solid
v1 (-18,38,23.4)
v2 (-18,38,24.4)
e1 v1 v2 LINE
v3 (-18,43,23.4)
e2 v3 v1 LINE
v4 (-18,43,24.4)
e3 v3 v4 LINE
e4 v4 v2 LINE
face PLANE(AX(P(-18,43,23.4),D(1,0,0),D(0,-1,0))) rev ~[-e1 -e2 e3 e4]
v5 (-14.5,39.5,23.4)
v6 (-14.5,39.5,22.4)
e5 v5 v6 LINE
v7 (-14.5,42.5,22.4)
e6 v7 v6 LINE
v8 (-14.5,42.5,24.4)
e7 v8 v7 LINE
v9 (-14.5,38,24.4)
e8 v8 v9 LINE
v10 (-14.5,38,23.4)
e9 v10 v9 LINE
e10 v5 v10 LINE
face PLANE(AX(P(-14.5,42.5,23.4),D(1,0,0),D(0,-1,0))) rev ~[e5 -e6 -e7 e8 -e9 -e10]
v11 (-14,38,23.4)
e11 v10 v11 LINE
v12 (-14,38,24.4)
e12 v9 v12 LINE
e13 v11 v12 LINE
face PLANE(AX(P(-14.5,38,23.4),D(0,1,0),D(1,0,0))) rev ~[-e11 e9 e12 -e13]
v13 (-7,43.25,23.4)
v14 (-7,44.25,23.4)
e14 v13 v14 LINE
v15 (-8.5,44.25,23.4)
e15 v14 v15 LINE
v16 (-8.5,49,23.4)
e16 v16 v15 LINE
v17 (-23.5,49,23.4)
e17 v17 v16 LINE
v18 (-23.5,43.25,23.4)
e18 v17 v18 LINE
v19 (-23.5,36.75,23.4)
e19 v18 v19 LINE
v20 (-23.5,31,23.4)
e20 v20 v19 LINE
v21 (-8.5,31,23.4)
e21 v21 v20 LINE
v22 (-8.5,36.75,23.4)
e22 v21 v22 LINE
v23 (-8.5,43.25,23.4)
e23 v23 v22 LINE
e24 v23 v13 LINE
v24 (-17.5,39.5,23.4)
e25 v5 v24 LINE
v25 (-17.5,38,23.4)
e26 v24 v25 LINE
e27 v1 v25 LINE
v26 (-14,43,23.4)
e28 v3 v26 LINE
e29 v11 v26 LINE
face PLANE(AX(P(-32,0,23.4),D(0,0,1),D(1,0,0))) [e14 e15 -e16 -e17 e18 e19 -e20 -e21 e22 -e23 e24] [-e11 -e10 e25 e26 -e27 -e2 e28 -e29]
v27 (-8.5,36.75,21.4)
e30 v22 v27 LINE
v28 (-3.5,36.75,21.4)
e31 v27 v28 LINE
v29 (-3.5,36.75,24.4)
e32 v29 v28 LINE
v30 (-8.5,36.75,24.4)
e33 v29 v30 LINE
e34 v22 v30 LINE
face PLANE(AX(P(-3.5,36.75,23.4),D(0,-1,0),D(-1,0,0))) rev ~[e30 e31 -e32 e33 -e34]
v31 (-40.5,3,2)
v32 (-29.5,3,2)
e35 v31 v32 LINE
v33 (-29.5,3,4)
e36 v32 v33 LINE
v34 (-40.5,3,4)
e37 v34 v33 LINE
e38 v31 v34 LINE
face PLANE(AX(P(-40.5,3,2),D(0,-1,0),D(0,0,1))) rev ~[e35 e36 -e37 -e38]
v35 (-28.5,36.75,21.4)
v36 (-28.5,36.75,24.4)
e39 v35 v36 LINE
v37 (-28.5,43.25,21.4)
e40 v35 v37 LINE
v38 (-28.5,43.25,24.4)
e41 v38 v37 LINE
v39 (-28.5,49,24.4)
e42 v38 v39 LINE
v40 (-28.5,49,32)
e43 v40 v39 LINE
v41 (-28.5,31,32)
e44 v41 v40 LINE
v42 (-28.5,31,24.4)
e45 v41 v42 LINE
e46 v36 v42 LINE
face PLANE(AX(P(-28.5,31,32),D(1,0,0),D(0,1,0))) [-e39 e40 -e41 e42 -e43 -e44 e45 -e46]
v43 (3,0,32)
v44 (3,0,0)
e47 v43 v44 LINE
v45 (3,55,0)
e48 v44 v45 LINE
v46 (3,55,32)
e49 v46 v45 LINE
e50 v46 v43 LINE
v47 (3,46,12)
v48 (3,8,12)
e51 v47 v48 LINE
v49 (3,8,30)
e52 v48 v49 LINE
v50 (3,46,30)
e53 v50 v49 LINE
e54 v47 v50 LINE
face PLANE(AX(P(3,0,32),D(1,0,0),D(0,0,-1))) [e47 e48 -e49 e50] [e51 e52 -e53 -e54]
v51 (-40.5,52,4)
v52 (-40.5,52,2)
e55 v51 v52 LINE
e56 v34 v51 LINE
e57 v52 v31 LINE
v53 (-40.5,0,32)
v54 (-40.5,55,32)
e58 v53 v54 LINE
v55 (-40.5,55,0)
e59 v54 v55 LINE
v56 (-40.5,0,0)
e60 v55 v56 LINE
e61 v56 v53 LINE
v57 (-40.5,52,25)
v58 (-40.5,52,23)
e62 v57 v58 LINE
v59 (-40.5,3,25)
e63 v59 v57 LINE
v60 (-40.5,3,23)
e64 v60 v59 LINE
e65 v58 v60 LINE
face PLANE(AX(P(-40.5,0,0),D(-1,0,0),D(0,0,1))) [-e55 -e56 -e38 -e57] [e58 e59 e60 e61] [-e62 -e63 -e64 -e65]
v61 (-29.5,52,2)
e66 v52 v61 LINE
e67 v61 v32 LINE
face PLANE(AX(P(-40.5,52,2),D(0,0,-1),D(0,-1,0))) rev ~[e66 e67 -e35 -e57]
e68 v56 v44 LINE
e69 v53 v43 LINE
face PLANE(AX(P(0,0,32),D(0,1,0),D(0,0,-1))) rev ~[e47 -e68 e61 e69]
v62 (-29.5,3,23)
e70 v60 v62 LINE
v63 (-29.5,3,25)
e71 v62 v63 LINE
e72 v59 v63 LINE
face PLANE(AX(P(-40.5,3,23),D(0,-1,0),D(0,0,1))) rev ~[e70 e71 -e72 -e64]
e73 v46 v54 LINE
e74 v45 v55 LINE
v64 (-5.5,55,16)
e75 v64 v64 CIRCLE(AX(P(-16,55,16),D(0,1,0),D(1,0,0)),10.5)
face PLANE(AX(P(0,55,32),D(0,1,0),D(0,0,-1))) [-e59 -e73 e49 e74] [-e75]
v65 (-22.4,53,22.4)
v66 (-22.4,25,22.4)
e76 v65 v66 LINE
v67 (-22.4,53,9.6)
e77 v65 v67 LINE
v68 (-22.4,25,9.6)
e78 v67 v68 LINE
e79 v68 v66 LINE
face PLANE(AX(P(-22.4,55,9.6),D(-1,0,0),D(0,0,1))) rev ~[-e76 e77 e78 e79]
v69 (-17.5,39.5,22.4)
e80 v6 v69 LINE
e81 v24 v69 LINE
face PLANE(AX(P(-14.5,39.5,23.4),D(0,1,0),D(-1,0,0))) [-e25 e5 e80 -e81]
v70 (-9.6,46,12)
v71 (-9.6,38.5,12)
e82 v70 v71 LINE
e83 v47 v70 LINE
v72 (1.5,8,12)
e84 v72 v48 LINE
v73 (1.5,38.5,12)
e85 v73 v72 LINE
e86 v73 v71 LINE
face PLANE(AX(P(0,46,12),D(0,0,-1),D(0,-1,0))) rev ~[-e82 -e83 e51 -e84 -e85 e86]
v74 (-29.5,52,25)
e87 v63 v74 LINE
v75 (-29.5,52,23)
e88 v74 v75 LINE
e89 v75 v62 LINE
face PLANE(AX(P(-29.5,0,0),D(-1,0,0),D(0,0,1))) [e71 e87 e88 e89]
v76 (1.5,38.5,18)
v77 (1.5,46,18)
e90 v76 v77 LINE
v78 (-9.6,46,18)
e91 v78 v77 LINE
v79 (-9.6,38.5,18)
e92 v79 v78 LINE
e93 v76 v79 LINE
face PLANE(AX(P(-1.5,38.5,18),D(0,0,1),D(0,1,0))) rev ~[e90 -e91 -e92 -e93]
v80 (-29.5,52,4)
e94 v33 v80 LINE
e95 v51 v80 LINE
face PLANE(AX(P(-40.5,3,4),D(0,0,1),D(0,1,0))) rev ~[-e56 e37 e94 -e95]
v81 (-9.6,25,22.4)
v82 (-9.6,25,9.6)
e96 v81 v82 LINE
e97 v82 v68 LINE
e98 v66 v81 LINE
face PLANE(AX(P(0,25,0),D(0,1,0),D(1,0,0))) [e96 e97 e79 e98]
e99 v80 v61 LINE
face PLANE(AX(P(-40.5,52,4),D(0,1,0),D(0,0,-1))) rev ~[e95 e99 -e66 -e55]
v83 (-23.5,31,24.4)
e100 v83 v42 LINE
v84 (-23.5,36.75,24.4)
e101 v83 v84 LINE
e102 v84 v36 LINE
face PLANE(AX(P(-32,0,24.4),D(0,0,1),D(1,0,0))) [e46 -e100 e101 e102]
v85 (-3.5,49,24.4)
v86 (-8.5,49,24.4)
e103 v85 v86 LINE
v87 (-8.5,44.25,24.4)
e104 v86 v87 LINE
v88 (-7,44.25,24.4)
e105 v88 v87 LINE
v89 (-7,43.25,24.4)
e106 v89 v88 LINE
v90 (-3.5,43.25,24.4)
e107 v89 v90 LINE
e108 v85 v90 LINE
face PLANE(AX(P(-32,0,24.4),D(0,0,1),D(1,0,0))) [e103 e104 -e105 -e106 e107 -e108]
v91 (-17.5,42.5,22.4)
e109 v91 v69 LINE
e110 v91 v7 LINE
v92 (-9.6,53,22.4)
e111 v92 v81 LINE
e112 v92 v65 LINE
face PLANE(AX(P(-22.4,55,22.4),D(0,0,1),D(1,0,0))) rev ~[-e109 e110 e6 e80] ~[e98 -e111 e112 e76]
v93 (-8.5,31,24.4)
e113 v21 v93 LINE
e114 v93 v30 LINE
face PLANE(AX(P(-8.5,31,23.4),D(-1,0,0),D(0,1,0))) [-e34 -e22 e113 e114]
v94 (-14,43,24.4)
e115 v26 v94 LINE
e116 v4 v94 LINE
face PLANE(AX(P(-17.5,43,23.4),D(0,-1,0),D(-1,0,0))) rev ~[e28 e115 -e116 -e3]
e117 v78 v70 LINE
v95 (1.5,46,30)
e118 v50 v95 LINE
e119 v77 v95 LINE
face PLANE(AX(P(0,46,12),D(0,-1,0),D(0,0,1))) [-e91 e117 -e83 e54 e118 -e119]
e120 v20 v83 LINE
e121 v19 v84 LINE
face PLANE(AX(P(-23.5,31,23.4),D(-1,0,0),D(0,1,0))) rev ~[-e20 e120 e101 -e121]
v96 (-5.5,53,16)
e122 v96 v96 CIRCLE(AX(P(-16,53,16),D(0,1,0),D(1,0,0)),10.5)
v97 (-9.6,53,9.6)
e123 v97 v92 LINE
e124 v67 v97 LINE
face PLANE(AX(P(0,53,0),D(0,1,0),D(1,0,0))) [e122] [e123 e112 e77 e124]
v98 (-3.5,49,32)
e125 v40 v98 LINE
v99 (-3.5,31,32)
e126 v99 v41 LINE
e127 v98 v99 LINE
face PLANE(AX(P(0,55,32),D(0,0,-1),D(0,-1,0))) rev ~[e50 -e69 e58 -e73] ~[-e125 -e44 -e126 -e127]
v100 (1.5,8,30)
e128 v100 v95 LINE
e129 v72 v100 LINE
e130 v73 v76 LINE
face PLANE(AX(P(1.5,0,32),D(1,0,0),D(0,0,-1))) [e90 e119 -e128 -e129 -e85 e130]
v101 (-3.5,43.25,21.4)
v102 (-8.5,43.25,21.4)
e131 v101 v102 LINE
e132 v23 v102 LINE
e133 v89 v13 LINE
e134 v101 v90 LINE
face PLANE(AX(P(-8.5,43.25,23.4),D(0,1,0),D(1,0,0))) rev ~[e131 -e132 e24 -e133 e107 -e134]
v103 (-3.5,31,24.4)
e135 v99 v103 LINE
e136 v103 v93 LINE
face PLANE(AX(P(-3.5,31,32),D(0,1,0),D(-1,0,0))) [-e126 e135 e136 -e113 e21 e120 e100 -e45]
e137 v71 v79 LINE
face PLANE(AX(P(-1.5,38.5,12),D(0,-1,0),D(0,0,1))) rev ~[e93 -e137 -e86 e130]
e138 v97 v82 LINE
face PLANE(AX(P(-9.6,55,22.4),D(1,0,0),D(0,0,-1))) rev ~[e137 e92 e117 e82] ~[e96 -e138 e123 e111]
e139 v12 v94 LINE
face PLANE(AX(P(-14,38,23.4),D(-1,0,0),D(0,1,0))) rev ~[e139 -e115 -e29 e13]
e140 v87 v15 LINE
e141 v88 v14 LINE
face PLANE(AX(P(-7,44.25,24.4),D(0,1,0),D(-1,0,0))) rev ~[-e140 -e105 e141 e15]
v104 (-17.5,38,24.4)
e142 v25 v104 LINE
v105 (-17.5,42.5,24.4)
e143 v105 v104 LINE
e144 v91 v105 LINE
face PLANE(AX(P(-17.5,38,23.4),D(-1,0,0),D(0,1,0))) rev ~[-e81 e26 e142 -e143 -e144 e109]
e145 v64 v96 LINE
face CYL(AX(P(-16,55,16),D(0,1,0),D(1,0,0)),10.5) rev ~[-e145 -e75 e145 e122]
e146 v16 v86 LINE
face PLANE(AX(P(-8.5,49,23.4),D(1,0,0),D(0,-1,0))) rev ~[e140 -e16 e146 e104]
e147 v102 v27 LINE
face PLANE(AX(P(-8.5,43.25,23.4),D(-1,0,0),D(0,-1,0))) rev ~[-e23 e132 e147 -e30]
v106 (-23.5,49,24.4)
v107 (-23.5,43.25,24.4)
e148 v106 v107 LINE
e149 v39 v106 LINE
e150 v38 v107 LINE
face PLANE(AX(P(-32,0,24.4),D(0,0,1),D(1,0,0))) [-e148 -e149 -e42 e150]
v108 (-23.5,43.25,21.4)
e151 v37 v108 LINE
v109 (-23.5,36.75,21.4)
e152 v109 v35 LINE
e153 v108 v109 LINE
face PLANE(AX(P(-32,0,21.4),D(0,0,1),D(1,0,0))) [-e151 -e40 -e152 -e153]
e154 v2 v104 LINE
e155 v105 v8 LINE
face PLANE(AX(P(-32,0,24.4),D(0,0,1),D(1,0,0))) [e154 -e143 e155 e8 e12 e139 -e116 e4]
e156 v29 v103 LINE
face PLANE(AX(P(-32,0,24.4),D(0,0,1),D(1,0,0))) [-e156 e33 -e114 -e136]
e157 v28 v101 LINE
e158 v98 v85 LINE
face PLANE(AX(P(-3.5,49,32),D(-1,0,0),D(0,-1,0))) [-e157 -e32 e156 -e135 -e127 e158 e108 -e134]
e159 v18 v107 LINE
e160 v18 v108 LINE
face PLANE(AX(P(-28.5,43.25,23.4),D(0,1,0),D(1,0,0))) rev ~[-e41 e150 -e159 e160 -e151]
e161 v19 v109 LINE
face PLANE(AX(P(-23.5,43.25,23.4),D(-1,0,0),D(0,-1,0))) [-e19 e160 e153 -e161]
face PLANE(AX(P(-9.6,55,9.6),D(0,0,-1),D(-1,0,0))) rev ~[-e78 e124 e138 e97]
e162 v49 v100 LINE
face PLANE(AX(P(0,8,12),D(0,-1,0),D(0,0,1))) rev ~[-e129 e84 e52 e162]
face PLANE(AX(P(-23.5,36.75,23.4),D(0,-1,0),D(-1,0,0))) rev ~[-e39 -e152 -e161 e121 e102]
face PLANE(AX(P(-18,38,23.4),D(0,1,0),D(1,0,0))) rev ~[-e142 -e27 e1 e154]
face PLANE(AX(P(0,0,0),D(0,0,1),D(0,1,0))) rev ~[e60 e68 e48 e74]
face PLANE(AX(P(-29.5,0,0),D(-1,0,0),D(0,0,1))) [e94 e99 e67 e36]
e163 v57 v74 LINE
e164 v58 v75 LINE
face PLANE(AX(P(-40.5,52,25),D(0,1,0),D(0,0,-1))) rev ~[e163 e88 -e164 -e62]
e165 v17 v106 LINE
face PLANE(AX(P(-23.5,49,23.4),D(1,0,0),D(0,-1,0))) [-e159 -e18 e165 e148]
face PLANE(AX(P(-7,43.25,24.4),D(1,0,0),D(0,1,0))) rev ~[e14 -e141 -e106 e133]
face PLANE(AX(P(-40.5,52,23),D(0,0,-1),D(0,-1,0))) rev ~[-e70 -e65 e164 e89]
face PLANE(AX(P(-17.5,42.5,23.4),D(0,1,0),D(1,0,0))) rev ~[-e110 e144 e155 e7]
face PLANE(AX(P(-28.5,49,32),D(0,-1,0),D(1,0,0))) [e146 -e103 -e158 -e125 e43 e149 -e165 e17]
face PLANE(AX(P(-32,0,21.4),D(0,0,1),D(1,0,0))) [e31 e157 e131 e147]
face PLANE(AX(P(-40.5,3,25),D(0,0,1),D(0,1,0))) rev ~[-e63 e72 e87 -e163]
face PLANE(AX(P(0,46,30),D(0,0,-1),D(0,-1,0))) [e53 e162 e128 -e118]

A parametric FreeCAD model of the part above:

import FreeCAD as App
import Part
import Sketcher
Q = App.Units.Quantity


def add_polygon(sketch, points):
    """Adds a closed chain of lines whose ends are joined by coincident constraints."""
    first, n = sketch.GeometryCount, len(points)
    for a, b in zip(points, points[1:] + points[:1]):
        sketch.addGeometry(Part.LineSegment(App.Vector(*a, 0), App.Vector(*b, 0)), False)
    for i in range(n):
        sketch.addConstraint(Sketcher.Constraint("Coincident", first + i, 2, first + (i + 1) % n, 1))

doc = App.newDocument("Part")
body = doc.addObject("PartDesign::Body", "Body")

sketch1 = body.newObject("Sketcher::SketchObject", "Sketch")
sketch1.AttachmentSupport = (doc.getObject("XZ_Plane"), [""])
sketch1.MapMode = "FlatFace"
add_polygon(sketch1, [(-32, 0), (-32, 32), (0, 32), (0, 0)])
sketch1.addConstraint([
    Sketcher.Constraint("Vertical", 0),
    Sketcher.Constraint("Horizontal", 1),
    Sketcher.Constraint("Vertical", 2),
    Sketcher.Constraint("Horizontal", 3),
    Sketcher.Constraint("Coincident", 2, 2, -1, 1),
    Sketcher.Constraint("Equal", 3, 0),
    Sketcher.Constraint("DistanceX", 1, 1, 1, 2, Q("32 mm")),
])
pad1 = body.newObject("PartDesign::Pad", "Pad")
pad1.Profile = sketch1
pad1.Length = 55
pad1.Reversed = True

sketch2 = body.newObject("Sketcher::SketchObject", "Sketch001")
sketch2.AttachmentSupport = (doc.getObject("XZ_Plane"), [""])
sketch2.MapMode = "FlatFace"
sketch2.AttachmentOffset = App.Placement(App.Vector(0, 0, -55), App.Rotation())
add_polygon(sketch2, [(-9.6, 22.4), (-9.6, 9.6), (-22.4, 9.6), (-22.4, 22.4)])
sketch2.addConstraint([
    Sketcher.Constraint("Vertical", 0),
    Sketcher.Constraint("Horizontal", 1),
    Sketcher.Constraint("Vertical", 2),
    Sketcher.Constraint("Horizontal", 3),
    Sketcher.Constraint("Equal", 3, 0),
    Sketcher.Constraint("DistanceX", 1, 2, 1, 1, Q("12.8 mm")),
    Sketcher.Constraint("DistanceX", 0, 2, -1, 1, Q("9.6 mm")),
    Sketcher.Constraint("DistanceY", -1, 1, 0, 2, Q("9.6 mm")),
])
pocket1 = body.newObject("PartDesign::Pocket", "Pocket")
pocket1.Profile = sketch2
pocket1.Length = 30
pocket1.Reversed = True

sketch3 = body.newObject("Sketcher::SketchObject", "Sketch002")
sketch3.AttachmentSupport = (doc.getObject("XY_Plane"), [""])
sketch3.MapMode = "FlatFace"
sketch3.AttachmentOffset = App.Placement(App.Vector(0, 0, 32), App.Rotation())
add_polygon(sketch3, [(-3.5, 49), (-28.5, 49), (-28.5, 31), (-3.5, 31)])
sketch3.addConstraint([
    Sketcher.Constraint("Horizontal", 0),
    Sketcher.Constraint("Vertical", 1),
    Sketcher.Constraint("Horizontal", 2),
    Sketcher.Constraint("Vertical", 3),
    Sketcher.Constraint("DistanceX", 0, 2, 0, 1, Q("25 mm")),
    Sketcher.Constraint("DistanceY", 1, 2, 1, 1, Q("18 mm")),
    Sketcher.Constraint("DistanceY", -1, 1, 0, 2, Q("49 mm")),
    Sketcher.Constraint("DistanceX", 0, 2, -1, 1, Q("28.5 mm")),
])
pocket2 = body.newObject("PartDesign::Pocket", "Pocket001")
pocket2.Profile = sketch3
pocket2.Length = 8.6

sketch4 = body.newObject("Sketcher::SketchObject", "Sketch003")
sketch4.AttachmentSupport = (doc.getObject("XY_Plane"), [""])
sketch4.MapMode = "FlatFace"
sketch4.AttachmentOffset = App.Placement(App.Vector(0, 0, 23.4), App.Rotation())
add_polygon(sketch4, [(-23.5, 43.25), (-28.5, 43.25), (-28.5, 36.75), (-23.5, 36.75)])
sketch4.addConstraint([
    Sketcher.Constraint("Horizontal", 0),
    Sketcher.Constraint("Vertical", 1),
    Sketcher.Constraint("Horizontal", 2),
    Sketcher.Constraint("Vertical", 3),
    Sketcher.Constraint("DistanceX", 0, 2, 0, 1, Q("5 mm")),
    Sketcher.Constraint("DistanceY", 1, 2, 1, 1, Q("6.5 mm")),
    Sketcher.Constraint("DistanceX", 0, 2, -1, 1, Q("28.5 mm")),
    Sketcher.Constraint("DistanceY", -1, 1, 0, 2, Q("43.25 mm")),
])
pocket3 = body.newObject("PartDesign::Pocket", "Pocket002")
pocket3.Profile = sketch4
pocket3.Length = 2

sketch5 = body.newObject("Sketcher::SketchObject", "Sketch004")
sketch5.AttachmentSupport = (doc.getObject("XY_Plane"), [""])
sketch5.MapMode = "FlatFace"
sketch5.AttachmentOffset = App.Placement(App.Vector(0, 0, 23.4), App.Rotation())
add_polygon(sketch5, [(-3.5, 36.75), (-3.5, 43.25), (-8.5, 43.25), (-8.5, 36.75)])
sketch5.addConstraint([
    Sketcher.Constraint("Vertical", 0),
    Sketcher.Constraint("Horizontal", 1),
    Sketcher.Constraint("Vertical", 2),
    Sketcher.Constraint("Horizontal", 3),
    Sketcher.Constraint("DistanceX", 1, 2, 1, 1, Q("5 mm")),
    Sketcher.Constraint("DistanceY", 0, 1, 0, 2, Q("6.5 mm")),
    Sketcher.Constraint("DistanceX", 0, 2, -1, 1, Q("3.5 mm")),
    Sketcher.Constraint("DistanceY", -1, 1, 0, 2, Q("43.25 mm")),
])
pocket4 = body.newObject("PartDesign::Pocket", "Pocket003")
pocket4.Profile = sketch5
pocket4.Length = 2

sketch6 = body.newObject("Sketcher::SketchObject", "Sketch005")
sketch6.AttachmentSupport = (doc.getObject("XY_Plane"), [""])
sketch6.MapMode = "FlatFace"
sketch6.AttachmentOffset = App.Placement(App.Vector(0, 0, 23.4), App.Rotation())
add_polygon(sketch6, [(-28.5, 49), (-28.5, 43.25), (-23.5, 43.25), (-23.5, 49)])
sketch6.addConstraint([
    Sketcher.Constraint("Vertical", 0),
    Sketcher.Constraint("Horizontal", 1),
    Sketcher.Constraint("Vertical", 2),
    Sketcher.Constraint("Horizontal", 3),
    Sketcher.Constraint("DistanceX", 1, 1, 1, 2, Q("5 mm")),
    Sketcher.Constraint("DistanceY", -1, 1, 2, 2, Q("49 mm")),
    Sketcher.Constraint("DistanceY", 0, 2, 0, 1, Q("5.75 mm")),
    Sketcher.Constraint("DistanceX", 0, 2, -1, 1, Q("28.5 mm")),
])
pad2 = body.newObject("PartDesign::Pad", "Pad001")
pad2.Profile = sketch6
pad2.Length = 1

sketch7 = body.newObject("Sketcher::SketchObject", "Sketch006")
sketch7.AttachmentSupport = (doc.getObject("XY_Plane"), [""])
sketch7.MapMode = "FlatFace"
sketch7.AttachmentOffset = App.Placement(App.Vector(0, 0, 23.4), App.Rotation())
add_polygon(sketch7, [(-23.5, 31), (-23.5, 36.75), (-28.5, 36.75), (-28.5, 31)])
sketch7.addConstraint([
    Sketcher.Constraint("Vertical", 0),
    Sketcher.Constraint("Horizontal", 1),
    Sketcher.Constraint("Vertical", 2),
    Sketcher.Constraint("Horizontal", 3),
    Sketcher.Constraint("DistanceX", 1, 2, 1, 1, Q("5 mm")),
    Sketcher.Constraint("DistanceY", -1, 1, 2, 2, Q("31 mm")),
    Sketcher.Constraint("DistanceY", 0, 1, 0, 2, Q("5.75 mm")),
    Sketcher.Constraint("DistanceX", 0, 2, -1, 1, Q("23.5 mm")),
])
pad3 = body.newObject("PartDesign::Pad", "Pad002")
pad3.Profile = sketch7
pad3.Length = 1

sketch8 = body.newObject("Sketcher::SketchObject", "Sketch007")
sketch8.AttachmentSupport = (doc.getObject("XY_Plane"), [""])
sketch8.MapMode = "FlatFace"
sketch8.AttachmentOffset = App.Placement(App.Vector(0, 0, 23.4), App.Rotation())
add_polygon(sketch8, [(-3.5, 31), (-3.5, 36.75), (-8.5, 36.75), (-8.5, 31)])
sketch8.addConstraint([
    Sketcher.Constraint("Vertical", 0),
    Sketcher.Constraint("Horizontal", 1),
    Sketcher.Constraint("Vertical", 2),
    Sketcher.Constraint("Horizontal", 3),
    Sketcher.Constraint("DistanceX", 1, 2, 1, 1, Q("5 mm")),
    Sketcher.Constraint("DistanceY", -1, 1, 2, 2, Q("31 mm")),
    Sketcher.Constraint("DistanceY", 0, 1, 0, 2, Q("5.75 mm")),
    Sketcher.Constraint("DistanceX", 0, 2, -1, 1, Q("3.5 mm")),
])
pad4 = body.newObject("PartDesign::Pad", "Pad003")
pad4.Profile = sketch8
pad4.Length = 1

sketch9 = body.newObject("Sketcher::SketchObject", "Sketch008")
sketch9.AttachmentSupport = (doc.getObject("XY_Plane"), [""])
sketch9.MapMode = "FlatFace"
sketch9.AttachmentOffset = App.Placement(App.Vector(0, 0, 23.4), App.Rotation())
add_polygon(sketch9, [(-8.5, 49), (-8.5, 43.25), (-3.5, 43.25), (-3.5, 49)])
sketch9.addConstraint([
    Sketcher.Constraint("Vertical", 0),
    Sketcher.Constraint("Horizontal", 1),
    Sketcher.Constraint("Vertical", 2),
    Sketcher.Constraint("Horizontal", 3),
    Sketcher.Constraint("DistanceX", 1, 1, 1, 2, Q("5 mm")),
    Sketcher.Constraint("DistanceY", -1, 1, 2, 2, Q("49 mm")),
    Sketcher.Constraint("DistanceY", 0, 2, 0, 1, Q("5.75 mm")),
    Sketcher.Constraint("DistanceX", 0, 2, -1, 1, Q("8.5 mm")),
])
pad5 = body.newObject("PartDesign::Pad", "Pad004")
pad5.Profile = sketch9
pad5.Length = 1

sketch10 = body.newObject("Sketcher::SketchObject", "Sketch009")
sketch10.AttachmentSupport = (doc.getObject("XY_Plane"), [""])
sketch10.MapMode = "FlatFace"
sketch10.AttachmentOffset = App.Placement(App.Vector(0, 0, 24.4), App.Rotation())
add_polygon(sketch10, [(-8.5, 44.25), (-8.5, 43.25), (-7, 43.25), (-7, 44.25)])
sketch10.addConstraint([
    Sketcher.Constraint("Vertical", 0),
    Sketcher.Constraint("Horizontal", 1),
    Sketcher.Constraint("Vertical", 2),
    Sketcher.Constraint("Horizontal", 3),
    Sketcher.Constraint("DistanceY", 0, 2, 0, 1, Q("1 mm")),
    Sketcher.Constraint("DistanceX", 1, 1, 1, 2, Q("1.5 mm")),
    Sketcher.Constraint("DistanceX", 1, 2, -1, 1, Q("7 mm")),
    Sketcher.Constraint("DistanceY", -1, 1, 0, 2, Q("43.25 mm")),
])
pocket5 = body.newObject("PartDesign::Pocket", "Pocket004")
pocket5.Profile = sketch10
pocket5.Length = 1

sketch11 = body.newObject("Sketcher::SketchObject", "Sketch010")
sketch11.AttachmentSupport = (doc.getObject("XY_Plane"), [""])
sketch11.MapMode = "FlatFace"
sketch11.AttachmentOffset = App.Placement(App.Vector(0, 0, 23.4), App.Rotation())
add_polygon(sketch11, [(-14, 43), (-18, 43), (-18, 38), (-17.5, 38), (-17.5, 42.5), (-14.5, 42.5), (-14.5, 38), (-14, 38)])
sketch11.addConstraint([
    Sketcher.Constraint("Horizontal", 0),
    Sketcher.Constraint("Vertical", 1),
    Sketcher.Constraint("Horizontal", 2),
    Sketcher.Constraint("Vertical", 3),
    Sketcher.Constraint("Horizontal", 4),
    Sketcher.Constraint("Vertical", 5),
    Sketcher.Constraint("Horizontal", 6),
    Sketcher.Constraint("Vertical", 7),
    Sketcher.Constraint("Horizontal", 2, 2, 5, 2),
    Sketcher.Constraint("Equal", 2, 6),
    Sketcher.Constraint("DistanceX", 0, 2, 0, 1, Q("4 mm")),
    Sketcher.Constraint("DistanceX", 4, 1, 4, 2, Q("3 mm")),
    Sketcher.Constraint("DistanceY", 1, 2, 1, 1, Q("5 mm")),
    Sketcher.Constraint("DistanceY", 3, 1, 3, 2, Q("4.5 mm")),
    Sketcher.Constraint("DistanceX", 0, 2, -1, 1, Q("18 mm")),
    Sketcher.Constraint("DistanceY", -1, 1, 0, 2, Q("43 mm")),
])
pad6 = body.newObject("PartDesign::Pad", "Pad005")
pad6.Profile = sketch11
pad6.Length = 1

sketch12 = body.newObject("Sketcher::SketchObject", "Sketch011")
sketch12.AttachmentSupport = (doc.getObject("XY_Plane"), [""])
sketch12.MapMode = "FlatFace"
sketch12.AttachmentOffset = App.Placement(App.Vector(0, 0, 23.4), App.Rotation())
add_polygon(sketch12, [(-14.5, 42.5), (-17.5, 42.5), (-17.5, 39.5), (-14.5, 39.5)])
sketch12.addConstraint([
    Sketcher.Constraint("Horizontal", 0),
    Sketcher.Constraint("Vertical", 1),
    Sketcher.Constraint("Horizontal", 2),
    Sketcher.Constraint("Vertical", 3),
    Sketcher.Constraint("Equal", 2, 1),
    Sketcher.Constraint("DistanceX", 0, 2, 0, 1, Q("3 mm")),
    Sketcher.Constraint("DistanceX", 0, 2, -1, 1, Q("17.5 mm")),
    Sketcher.Constraint("DistanceY", -1, 1, 0, 2, Q("42.5 mm")),
])
pocket6 = body.newObject("PartDesign::Pocket", "Pocket005")
pocket6.Profile = sketch12
pocket6.Length = 7.1

sketch13 = body.newObject("Sketcher::SketchObject", "Sketch012")
sketch13.AttachmentSupport = (doc.getObject("YZ_Plane"), [""])
sketch13.MapMode = "FlatFace"
add_polygon(sketch13, [(46, 12), (46, 30), (8, 30), (8, 12)])
sketch13.addConstraint([
    Sketcher.Constraint("Vertical", 0),
    Sketcher.Constraint("Horizontal", 1),
    Sketcher.Constraint("Vertical", 2),
    Sketcher.Constraint("Horizontal", 3),
    Sketcher.Constraint("DistanceX", 1, 2, 1, 1, Q("38 mm")),
    Sketcher.Constraint("DistanceY", 0, 1, 0, 2, Q("18 mm")),
    Sketcher.Constraint("DistanceX", -1, 1, 0, 2, Q("46 mm")),
    Sketcher.Constraint("DistanceY", -1, 1, 0, 2, Q("30 mm")),
])
pocket7 = body.newObject("PartDesign::Pocket", "Pocket006")
pocket7.Profile = sketch13
pocket7.Length = 1.5

sketch14 = body.newObject("Sketcher::SketchObject", "Sketch013")
sketch14.AttachmentSupport = (doc.getObject("YZ_Plane"), [""])
sketch14.MapMode = "FlatFace"
sketch14.AttachmentOffset = App.Placement(App.Vector(0, 0, -1.5), App.Rotation())
add_polygon(sketch14, [(38.5, 18), (38.5, 12), (46, 12), (46, 18)])
sketch14.addConstraint([
    Sketcher.Constraint("Vertical", 0),
    Sketcher.Constraint("Horizontal", 1),
    Sketcher.Constraint("Vertical", 2),
    Sketcher.Constraint("Horizontal", 3),
    Sketcher.Constraint("DistanceY", 0, 2, 0, 1, Q("6 mm")),
    Sketcher.Constraint("DistanceX", 1, 1, 1, 2, Q("7.5 mm")),
    Sketcher.Constraint("DistanceY", -1, 1, 0, 2, Q("12 mm")),
    Sketcher.Constraint("DistanceX", -1, 1, 1, 2, Q("46 mm")),
])
pocket8 = body.newObject("PartDesign::Pocket", "Pocket007")
pocket8.Profile = sketch14
pocket8.Length = 8.1

sketch15 = body.newObject("Sketcher::SketchObject", "Sketch014")
sketch15.AttachmentSupport = (doc.getObject("XZ_Plane"), [""])
sketch15.MapMode = "FlatFace"
sketch15.AttachmentOffset = App.Placement(App.Vector(0, 0, -55), App.Rotation())
sketch15.addGeometry(Part.Circle(App.Vector(-16, 16, 0), App.Vector(0, 0, 1), 10.5), False)
sketch15.addConstraint([
    Sketcher.Constraint("Diameter", 0, Q("21 mm")),
    Sketcher.Constraint("DistanceX", 0, 3, -1, 1, Q("16 mm")),
    Sketcher.Constraint("DistanceY", -1, 1, 0, 3, Q("16 mm")),
])
pocket9 = body.newObject("PartDesign::Pocket", "Pocket008")
pocket9.Profile = sketch15
pocket9.Length = 2
pocket9.Reversed = True

sketch16 = body.newObject("Sketcher::SketchObject", "Sketch015")
sketch16.AttachmentSupport = (doc.getObject("YZ_Plane"), [""])
sketch16.MapMode = "FlatFace"
sketch16.AttachmentOffset = App.Placement(App.Vector(0, 0, -32), App.Rotation())
add_polygon(sketch16, [(0, 0), (0, 32), (55, 32), (55, 0)])
sketch16.addConstraint([
    Sketcher.Constraint("Vertical", 0),
    Sketcher.Constraint("Horizontal", 1),
    Sketcher.Constraint("Vertical", 2),
    Sketcher.Constraint("Horizontal", 3),
    Sketcher.Constraint("Coincident", 3, 2, -1, 1),
    Sketcher.Constraint("DistanceX", 1, 1, 1, 2, Q("55 mm")),
    Sketcher.Constraint("DistanceY", 0, 1, 0, 2, Q("32 mm")),
])
pad7 = body.newObject("PartDesign::Pad", "Pad006")
pad7.Profile = sketch16
pad7.Length = 8.5
pad7.Reversed = True

sketch17 = body.newObject("Sketcher::SketchObject", "Sketch016")
sketch17.AttachmentSupport = (doc.getObject("YZ_Plane"), [""])
sketch17.MapMode = "FlatFace"
sketch17.AttachmentOffset = App.Placement(App.Vector(0, 0, -40.5), App.Rotation())
add_polygon(sketch17, [(52, 2), (3, 2), (3, 4), (52, 4)])
add_polygon(sketch17, [(52, 23), (3, 23), (3, 25), (52, 25)])
sketch17.addConstraint([
    Sketcher.Constraint("Horizontal", 0),
    Sketcher.Constraint("Vertical", 1),
    Sketcher.Constraint("Horizontal", 2),
    Sketcher.Constraint("Vertical", 3),
    Sketcher.Constraint("Horizontal", 4),
    Sketcher.Constraint("Vertical", 5),
    Sketcher.Constraint("Horizontal", 6),
    Sketcher.Constraint("Vertical", 7),
    Sketcher.Constraint("Vertical", 1, 2, 4, 2),
    Sketcher.Constraint("Vertical", 3, 2, 6, 2),
    Sketcher.Constraint("Equal", 3, 5),
    Sketcher.Constraint("DistanceX", 0, 2, 0, 1, Q("49 mm")),
    Sketcher.Constraint("DistanceY", 1, 1, 1, 2, Q("2 mm")),
    Sketcher.Constraint("DistanceX", -1, 1, 0, 2, Q("3 mm")),
    Sketcher.Constraint("DistanceY", -1, 1, 0, 2, Q("2 mm")),
    Sketcher.Constraint("DistanceY", -1, 1, 4, 2, Q("23 mm")),
])
pocket10 = body.newObject("PartDesign::Pocket", "Pocket009")
pocket10.Profile = sketch17
pocket10.Length = 11
pocket10.Reversed = True

sketch18 = body.newObject("Sketcher::SketchObject", "Sketch017")
sketch18.AttachmentSupport = (doc.getObject("YZ_Plane"), [""])
sketch18.MapMode = "FlatFace"
add_polygon(sketch18, [(55, 32), (0, 32), (0, 0), (55, 0)])
sketch18.addConstraint([
    Sketcher.Constraint("Horizontal", 0),
    Sketcher.Constraint("Vertical", 1),
    Sketcher.Constraint("Horizontal", 2),
    Sketcher.Constraint("Vertical", 3),
    Sketcher.Constraint("Coincident", 1, 2, -1, 1),
    Sketcher.Constraint("DistanceX", 0, 2, 0, 1, Q("55 mm")),
    Sketcher.Constraint("DistanceY", 1, 2, 1, 1, Q("32 mm")),
])
pad8 = body.newObject("PartDesign::Pad", "Pad007")
pad8.Profile = sketch18
pad8.Length = 3

sketch19 = body.newObject("Sketcher::SketchObject", "Sketch018")
sketch19.AttachmentSupport = (doc.getObject("YZ_Plane"), [""])
sketch19.MapMode = "FlatFace"
add_polygon(sketch19, [(8, 30), (8, 12), (46, 12), (46, 30)])
sketch19.addConstraint([
    Sketcher.Constraint("Vertical", 0),
    Sketcher.Constraint("Horizontal", 1),
    Sketcher.Constraint("Vertical", 2),
    Sketcher.Constraint("Horizontal", 3),
    Sketcher.Constraint("DistanceX", 1, 1, 1, 2, Q("38 mm")),
    Sketcher.Constraint("DistanceY", 0, 2, 0, 1, Q("18 mm")),
    Sketcher.Constraint("DistanceX", -1, 1, 0, 2, Q("8 mm")),
    Sketcher.Constraint("DistanceY", -1, 1, 0, 2, Q("12 mm")),
])
pocket11 = body.newObject("PartDesign::Pocket", "Pocket010")
pocket11.Profile = sketch19
pocket11.Length = 3
pocket11.Reversed = True

sketch20 = body.newObject("Sketcher::SketchObject", "Sketch019")
sketch20.AttachmentSupport = (doc.getObject("YZ_Plane"), [""])
sketch20.MapMode = "FlatFace"
sketch20.AttachmentOffset = App.Placement(App.Vector(0, 0, -1.5), App.Rotation())
add_polygon(sketch20, [(46, 30), (8, 30), (8, 12), (38.5, 12), (38.5, 18), (46, 18)])
sketch20.addConstraint([
    Sketcher.Constraint("Horizontal", 0),
    Sketcher.Constraint("Vertical", 1),
    Sketcher.Constraint("Horizontal", 2),
    Sketcher.Constraint("Vertical", 3),
    Sketcher.Constraint("Horizontal", 4),
    Sketcher.Constraint("Vertical", 5),
    Sketcher.Constraint("DistanceX", 0, 2, 0, 1, Q("38 mm")),
    Sketcher.Constraint("DistanceY", 1, 2, 1, 1, Q("18 mm")),
    Sketcher.Constraint("DistanceY", 3, 1, 3, 2, Q("6 mm")),
    Sketcher.Constraint("DistanceX", 2, 1, 2, 2, Q("30.5 mm")),
    Sketcher.Constraint("DistanceX", -1, 1, 0, 2, Q("8 mm")),
    Sketcher.Constraint("DistanceY", -1, 1, 0, 2, Q("30 mm")),
])
pad9 = body.newObject("PartDesign::Pad", "Pad008")
pad9.Profile = sketch20
pad9.Length = 3

doc.recompute()
